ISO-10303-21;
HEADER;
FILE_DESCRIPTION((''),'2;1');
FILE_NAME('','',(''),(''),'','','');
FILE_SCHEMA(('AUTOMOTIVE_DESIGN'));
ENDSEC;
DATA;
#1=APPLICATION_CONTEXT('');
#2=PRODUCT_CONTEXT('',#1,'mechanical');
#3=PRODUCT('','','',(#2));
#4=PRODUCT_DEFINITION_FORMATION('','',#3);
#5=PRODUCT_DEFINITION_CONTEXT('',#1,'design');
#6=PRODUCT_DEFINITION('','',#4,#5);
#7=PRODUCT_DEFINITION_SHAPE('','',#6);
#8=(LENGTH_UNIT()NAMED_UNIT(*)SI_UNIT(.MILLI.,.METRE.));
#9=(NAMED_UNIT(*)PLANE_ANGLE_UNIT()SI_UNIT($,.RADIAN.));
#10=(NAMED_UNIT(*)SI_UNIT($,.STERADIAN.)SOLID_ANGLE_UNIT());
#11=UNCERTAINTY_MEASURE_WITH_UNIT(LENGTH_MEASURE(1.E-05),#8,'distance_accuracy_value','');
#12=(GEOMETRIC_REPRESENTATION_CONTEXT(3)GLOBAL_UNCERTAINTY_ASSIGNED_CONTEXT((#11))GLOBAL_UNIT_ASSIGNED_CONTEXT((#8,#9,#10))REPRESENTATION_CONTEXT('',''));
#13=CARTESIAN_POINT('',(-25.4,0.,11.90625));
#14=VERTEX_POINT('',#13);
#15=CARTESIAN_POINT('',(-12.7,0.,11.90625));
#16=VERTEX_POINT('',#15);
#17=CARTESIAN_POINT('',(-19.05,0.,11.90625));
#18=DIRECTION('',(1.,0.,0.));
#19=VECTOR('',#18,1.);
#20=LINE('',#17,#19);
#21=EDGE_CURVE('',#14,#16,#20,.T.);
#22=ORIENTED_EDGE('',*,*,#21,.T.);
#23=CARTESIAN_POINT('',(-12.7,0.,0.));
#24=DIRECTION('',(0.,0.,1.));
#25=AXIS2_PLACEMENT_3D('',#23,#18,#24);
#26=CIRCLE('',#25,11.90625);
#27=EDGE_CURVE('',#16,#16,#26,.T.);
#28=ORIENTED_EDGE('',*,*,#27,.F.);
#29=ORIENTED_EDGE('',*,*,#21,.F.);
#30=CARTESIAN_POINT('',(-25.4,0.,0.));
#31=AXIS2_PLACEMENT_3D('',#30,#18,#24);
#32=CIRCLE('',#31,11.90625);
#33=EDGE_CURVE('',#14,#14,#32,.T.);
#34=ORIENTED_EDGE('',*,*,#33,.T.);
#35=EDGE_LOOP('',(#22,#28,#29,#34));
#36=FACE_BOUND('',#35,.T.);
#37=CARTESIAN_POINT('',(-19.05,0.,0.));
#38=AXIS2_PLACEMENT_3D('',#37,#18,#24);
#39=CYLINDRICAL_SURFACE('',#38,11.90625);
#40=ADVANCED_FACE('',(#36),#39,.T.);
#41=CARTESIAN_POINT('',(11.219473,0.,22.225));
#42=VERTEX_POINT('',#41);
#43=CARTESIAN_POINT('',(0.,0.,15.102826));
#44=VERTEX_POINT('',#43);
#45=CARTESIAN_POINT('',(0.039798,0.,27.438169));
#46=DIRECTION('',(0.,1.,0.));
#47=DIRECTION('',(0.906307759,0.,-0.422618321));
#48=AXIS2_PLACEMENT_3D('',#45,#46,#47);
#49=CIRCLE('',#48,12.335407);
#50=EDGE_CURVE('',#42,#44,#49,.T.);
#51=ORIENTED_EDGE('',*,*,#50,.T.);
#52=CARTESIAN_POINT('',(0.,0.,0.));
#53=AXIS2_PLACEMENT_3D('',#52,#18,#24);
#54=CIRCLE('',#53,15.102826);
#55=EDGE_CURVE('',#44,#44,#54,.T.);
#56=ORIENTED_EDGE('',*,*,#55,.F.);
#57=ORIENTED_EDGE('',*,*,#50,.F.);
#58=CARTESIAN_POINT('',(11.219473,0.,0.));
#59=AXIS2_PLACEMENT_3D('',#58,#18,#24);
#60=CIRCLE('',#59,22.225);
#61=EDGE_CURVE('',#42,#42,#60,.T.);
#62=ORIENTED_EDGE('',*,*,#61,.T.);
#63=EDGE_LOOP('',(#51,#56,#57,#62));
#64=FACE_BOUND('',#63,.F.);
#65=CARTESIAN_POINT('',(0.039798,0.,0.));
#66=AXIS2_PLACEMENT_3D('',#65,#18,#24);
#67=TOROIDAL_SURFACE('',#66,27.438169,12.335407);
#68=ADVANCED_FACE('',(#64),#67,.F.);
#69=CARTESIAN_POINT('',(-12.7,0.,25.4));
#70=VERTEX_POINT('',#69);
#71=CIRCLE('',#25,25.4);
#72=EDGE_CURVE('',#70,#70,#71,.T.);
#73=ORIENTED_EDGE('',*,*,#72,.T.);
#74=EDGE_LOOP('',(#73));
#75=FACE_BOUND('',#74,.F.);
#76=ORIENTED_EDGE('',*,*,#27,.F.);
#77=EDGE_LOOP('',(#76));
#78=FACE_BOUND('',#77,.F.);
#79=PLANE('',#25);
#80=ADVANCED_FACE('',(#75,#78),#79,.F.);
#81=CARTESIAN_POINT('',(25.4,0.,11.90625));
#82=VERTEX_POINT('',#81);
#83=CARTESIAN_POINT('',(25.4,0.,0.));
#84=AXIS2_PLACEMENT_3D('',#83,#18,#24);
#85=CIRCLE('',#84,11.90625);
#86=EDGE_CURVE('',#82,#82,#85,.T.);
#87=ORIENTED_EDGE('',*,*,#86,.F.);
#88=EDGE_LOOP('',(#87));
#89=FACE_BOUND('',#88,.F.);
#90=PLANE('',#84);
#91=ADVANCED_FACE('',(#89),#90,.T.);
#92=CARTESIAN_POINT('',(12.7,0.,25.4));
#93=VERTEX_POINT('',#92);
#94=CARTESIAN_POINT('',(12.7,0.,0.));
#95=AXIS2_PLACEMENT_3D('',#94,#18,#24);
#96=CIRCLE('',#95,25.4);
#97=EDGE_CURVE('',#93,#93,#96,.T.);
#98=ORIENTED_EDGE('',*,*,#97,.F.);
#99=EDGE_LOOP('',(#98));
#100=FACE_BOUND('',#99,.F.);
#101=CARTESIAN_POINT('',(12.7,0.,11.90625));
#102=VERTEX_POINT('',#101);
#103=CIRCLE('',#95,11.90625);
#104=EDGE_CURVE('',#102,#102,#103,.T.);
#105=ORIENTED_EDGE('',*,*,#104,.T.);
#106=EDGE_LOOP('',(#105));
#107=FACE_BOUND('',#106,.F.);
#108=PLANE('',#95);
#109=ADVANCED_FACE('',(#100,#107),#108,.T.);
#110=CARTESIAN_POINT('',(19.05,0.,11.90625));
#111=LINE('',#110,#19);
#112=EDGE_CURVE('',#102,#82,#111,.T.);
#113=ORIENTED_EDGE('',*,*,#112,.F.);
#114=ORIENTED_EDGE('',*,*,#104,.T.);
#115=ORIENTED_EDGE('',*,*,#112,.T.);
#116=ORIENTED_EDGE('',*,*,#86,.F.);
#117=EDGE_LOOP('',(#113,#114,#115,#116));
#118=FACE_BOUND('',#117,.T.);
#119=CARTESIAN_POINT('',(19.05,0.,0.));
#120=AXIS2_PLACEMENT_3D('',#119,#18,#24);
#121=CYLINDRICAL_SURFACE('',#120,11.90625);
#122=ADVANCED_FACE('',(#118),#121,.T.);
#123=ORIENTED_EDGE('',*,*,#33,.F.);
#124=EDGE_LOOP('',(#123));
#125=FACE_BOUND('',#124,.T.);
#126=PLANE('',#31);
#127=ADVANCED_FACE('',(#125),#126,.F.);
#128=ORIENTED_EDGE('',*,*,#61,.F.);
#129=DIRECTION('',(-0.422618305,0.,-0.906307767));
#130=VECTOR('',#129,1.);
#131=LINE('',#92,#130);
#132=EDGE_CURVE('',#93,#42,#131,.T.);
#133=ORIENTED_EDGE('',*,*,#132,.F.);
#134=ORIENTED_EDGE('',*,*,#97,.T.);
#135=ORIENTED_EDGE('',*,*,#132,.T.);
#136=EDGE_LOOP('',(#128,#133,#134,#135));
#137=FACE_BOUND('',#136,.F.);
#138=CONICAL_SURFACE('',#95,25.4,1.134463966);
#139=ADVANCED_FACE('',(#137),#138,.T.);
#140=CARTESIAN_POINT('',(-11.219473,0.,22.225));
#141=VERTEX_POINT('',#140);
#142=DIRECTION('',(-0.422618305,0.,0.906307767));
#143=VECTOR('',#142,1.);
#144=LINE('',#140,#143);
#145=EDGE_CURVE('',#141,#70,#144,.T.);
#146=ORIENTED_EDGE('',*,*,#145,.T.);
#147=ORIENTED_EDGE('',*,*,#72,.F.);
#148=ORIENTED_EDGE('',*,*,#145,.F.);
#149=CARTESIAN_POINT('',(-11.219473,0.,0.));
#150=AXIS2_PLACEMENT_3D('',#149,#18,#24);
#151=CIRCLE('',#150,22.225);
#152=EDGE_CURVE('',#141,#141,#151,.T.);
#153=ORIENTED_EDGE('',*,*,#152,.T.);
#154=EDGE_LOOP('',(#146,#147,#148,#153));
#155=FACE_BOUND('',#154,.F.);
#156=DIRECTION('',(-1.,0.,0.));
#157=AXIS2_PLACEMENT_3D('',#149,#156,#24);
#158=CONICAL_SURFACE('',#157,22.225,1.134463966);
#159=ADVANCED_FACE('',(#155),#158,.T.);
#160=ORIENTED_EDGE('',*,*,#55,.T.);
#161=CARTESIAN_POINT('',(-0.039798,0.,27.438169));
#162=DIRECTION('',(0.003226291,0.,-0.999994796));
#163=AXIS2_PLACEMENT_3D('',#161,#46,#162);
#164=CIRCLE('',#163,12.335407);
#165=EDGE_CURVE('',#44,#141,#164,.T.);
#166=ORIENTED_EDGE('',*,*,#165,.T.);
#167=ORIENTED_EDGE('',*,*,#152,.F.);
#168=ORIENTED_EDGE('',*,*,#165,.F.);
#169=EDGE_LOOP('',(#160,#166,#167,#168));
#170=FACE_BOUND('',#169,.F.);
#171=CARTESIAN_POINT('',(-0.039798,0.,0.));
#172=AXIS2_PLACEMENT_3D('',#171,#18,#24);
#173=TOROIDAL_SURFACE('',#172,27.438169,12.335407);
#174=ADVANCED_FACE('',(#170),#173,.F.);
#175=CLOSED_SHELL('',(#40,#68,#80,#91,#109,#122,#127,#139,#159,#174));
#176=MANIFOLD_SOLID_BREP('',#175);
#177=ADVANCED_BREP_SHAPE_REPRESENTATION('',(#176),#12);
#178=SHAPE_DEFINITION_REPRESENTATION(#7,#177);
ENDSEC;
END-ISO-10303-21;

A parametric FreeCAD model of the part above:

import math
import FreeCAD as App
import Part
import Sketcher
from FreeCAD import Vector
Q = App.Units.Quantity

doc = App.newDocument("Part")
body = doc.addObject("PartDesign::Body", "Body")

sketch1 = body.newObject("Sketcher::SketchObject", "Sketch")
sketch1.AttachmentSupport = (doc.getObject("XZ_Plane"), [""])
sketch1.MapMode = "FlatFace"
sketch1.addGeometry(Part.LineSegment(Vector(12.7, 11.9, 0), Vector(12.7, 25.4, 0)), False)
sketch1.addGeometry(Part.LineSegment(Vector(12.7, 25.4, 0), Vector(11.2, 22.2, 0)), False)
sketch1.addGeometry(Part.ArcOfCircle(Part.Circle(Vector(0, 27.4, 0), Vector(0, 0, 1), 12.3), math.radians(-90), math.radians(-25)), False)
sketch1.addGeometry(Part.ArcOfCircle(Part.Circle(Vector(0, 27.4, 0), Vector(0, 0, 1), 12.3), math.radians(-155), math.radians(-90)), False)
sketch1.addGeometry(Part.LineSegment(Vector(-11.2, 22.2, 0), Vector(-12.7, 25.4, 0)), False)
sketch1.addGeometry(Part.LineSegment(Vector(-12.7, 25.4, 0), Vector(-12.7, 11.9, 0)), False)
sketch1.addGeometry(Part.LineSegment(Vector(-12.7, 11.9, 0), Vector(-25.4, 11.9, 0)), False)
sketch1.addGeometry(Part.LineSegment(Vector(-25.4, 11.9, 0), Vector(-25.4, 0, 0)), False)
sketch1.addGeometry(Part.LineSegment(Vector(-25.4, 0, 0), Vector(25.4, 0, 0)), False)
sketch1.addGeometry(Part.LineSegment(Vector(25.4, 0, 0), Vector(25.4, 11.9, 0)), False)
sketch1.addGeometry(Part.LineSegment(Vector(25.4, 11.9, 0), Vector(12.7, 11.9, 0)), False)
sketch1.addConstraint(Sketcher.Constraint("Coincident", 0, 2, 1, 1))
sketch1.addConstraint(Sketcher.Constraint("Tangent", 1, 2, 2, 2))
sketch1.addConstraint(Sketcher.Constraint("Coincident", 2, 1, 3, 2))
sketch1.addConstraint(Sketcher.Constraint("Tangent", 3, 1, 4, 1))
sketch1.addConstraint(Sketcher.Constraint("Coincident", 4, 2, 5, 1))
sketch1.addConstraint(Sketcher.Constraint("Coincident", 5, 2, 6, 1))
sketch1.addConstraint(Sketcher.Constraint("Coincident", 6, 2, 7, 1))
sketch1.addConstraint(Sketcher.Constraint("Coincident", 7, 2, 8, 1))
sketch1.addConstraint(Sketcher.Constraint("Coincident", 8, 2, 9, 1))
sketch1.addConstraint(Sketcher.Constraint("Coincident", 9, 2, 10, 1))
sketch1.addConstraint(Sketcher.Constraint("Coincident", 10, 2, 0, 1))
sketch1.addConstraint(Sketcher.Constraint("Vertical", 0))
sketch1.addConstraint(Sketcher.Constraint("Vertical", 5))
sketch1.addConstraint(Sketcher.Constraint("Horizontal", 6))
sketch1.addConstraint(Sketcher.Constraint("Vertical", 7))
sketch1.addConstraint(Sketcher.Constraint("Horizontal", 8))
sketch1.addConstraint(Sketcher.Constraint("Vertical", 9))
sketch1.addConstraint(Sketcher.Constraint("Horizontal", 10))
sketch1.addConstraint(Sketcher.Constraint("Equal", 2, 3))
sketch1.addConstraint(Sketcher.Constraint("Symmetric", 7, 2, 8, 2, -1, 1))
sketch1.addConstraint(Sketcher.Constraint("Symmetric", 2, 3, 3, 3, -2))
sketch1.addConstraint(Sketcher.Constraint("Symmetric", 0, 2, 4, 2, -2))
sketch1.addConstraint(Sketcher.Constraint("Horizontal", 6, 2, 9, 2))
sketch1.addConstraint(Sketcher.Constraint("DistanceX", 8, 1, 8, 2, Q("2 in")))
sketch1.addConstraint(Sketcher.Constraint("DistanceX", 6, 2, 6, 1, Q("0.5 in")))
sketch1.addConstraint(Sketcher.Constraint("DistanceY", -1, 1, 0, 2, Q("1 in")))
sketch1.addConstraint(Sketcher.Constraint("Angle", 1, Q("-115.000003 deg")))
sketch1.addConstraint(Sketcher.Constraint("DistanceY", 0, 1, 0, 2, Q("0.53125 in")))
sketch1.addConstraint(Sketcher.Constraint("DistanceY", -1, 1, 1, 2, Q("0.875 in")))
sketch1.addConstraint(Sketcher.Constraint("Radius", 2, Q("12.335407 mm")))
revolution = body.newObject("PartDesign::Revolution", "Revolution")
revolution.Profile = sketch1
revolution.ReferenceAxis = (sketch1, ["H_Axis"])
revolution.Angle = 360

doc.recompute()
